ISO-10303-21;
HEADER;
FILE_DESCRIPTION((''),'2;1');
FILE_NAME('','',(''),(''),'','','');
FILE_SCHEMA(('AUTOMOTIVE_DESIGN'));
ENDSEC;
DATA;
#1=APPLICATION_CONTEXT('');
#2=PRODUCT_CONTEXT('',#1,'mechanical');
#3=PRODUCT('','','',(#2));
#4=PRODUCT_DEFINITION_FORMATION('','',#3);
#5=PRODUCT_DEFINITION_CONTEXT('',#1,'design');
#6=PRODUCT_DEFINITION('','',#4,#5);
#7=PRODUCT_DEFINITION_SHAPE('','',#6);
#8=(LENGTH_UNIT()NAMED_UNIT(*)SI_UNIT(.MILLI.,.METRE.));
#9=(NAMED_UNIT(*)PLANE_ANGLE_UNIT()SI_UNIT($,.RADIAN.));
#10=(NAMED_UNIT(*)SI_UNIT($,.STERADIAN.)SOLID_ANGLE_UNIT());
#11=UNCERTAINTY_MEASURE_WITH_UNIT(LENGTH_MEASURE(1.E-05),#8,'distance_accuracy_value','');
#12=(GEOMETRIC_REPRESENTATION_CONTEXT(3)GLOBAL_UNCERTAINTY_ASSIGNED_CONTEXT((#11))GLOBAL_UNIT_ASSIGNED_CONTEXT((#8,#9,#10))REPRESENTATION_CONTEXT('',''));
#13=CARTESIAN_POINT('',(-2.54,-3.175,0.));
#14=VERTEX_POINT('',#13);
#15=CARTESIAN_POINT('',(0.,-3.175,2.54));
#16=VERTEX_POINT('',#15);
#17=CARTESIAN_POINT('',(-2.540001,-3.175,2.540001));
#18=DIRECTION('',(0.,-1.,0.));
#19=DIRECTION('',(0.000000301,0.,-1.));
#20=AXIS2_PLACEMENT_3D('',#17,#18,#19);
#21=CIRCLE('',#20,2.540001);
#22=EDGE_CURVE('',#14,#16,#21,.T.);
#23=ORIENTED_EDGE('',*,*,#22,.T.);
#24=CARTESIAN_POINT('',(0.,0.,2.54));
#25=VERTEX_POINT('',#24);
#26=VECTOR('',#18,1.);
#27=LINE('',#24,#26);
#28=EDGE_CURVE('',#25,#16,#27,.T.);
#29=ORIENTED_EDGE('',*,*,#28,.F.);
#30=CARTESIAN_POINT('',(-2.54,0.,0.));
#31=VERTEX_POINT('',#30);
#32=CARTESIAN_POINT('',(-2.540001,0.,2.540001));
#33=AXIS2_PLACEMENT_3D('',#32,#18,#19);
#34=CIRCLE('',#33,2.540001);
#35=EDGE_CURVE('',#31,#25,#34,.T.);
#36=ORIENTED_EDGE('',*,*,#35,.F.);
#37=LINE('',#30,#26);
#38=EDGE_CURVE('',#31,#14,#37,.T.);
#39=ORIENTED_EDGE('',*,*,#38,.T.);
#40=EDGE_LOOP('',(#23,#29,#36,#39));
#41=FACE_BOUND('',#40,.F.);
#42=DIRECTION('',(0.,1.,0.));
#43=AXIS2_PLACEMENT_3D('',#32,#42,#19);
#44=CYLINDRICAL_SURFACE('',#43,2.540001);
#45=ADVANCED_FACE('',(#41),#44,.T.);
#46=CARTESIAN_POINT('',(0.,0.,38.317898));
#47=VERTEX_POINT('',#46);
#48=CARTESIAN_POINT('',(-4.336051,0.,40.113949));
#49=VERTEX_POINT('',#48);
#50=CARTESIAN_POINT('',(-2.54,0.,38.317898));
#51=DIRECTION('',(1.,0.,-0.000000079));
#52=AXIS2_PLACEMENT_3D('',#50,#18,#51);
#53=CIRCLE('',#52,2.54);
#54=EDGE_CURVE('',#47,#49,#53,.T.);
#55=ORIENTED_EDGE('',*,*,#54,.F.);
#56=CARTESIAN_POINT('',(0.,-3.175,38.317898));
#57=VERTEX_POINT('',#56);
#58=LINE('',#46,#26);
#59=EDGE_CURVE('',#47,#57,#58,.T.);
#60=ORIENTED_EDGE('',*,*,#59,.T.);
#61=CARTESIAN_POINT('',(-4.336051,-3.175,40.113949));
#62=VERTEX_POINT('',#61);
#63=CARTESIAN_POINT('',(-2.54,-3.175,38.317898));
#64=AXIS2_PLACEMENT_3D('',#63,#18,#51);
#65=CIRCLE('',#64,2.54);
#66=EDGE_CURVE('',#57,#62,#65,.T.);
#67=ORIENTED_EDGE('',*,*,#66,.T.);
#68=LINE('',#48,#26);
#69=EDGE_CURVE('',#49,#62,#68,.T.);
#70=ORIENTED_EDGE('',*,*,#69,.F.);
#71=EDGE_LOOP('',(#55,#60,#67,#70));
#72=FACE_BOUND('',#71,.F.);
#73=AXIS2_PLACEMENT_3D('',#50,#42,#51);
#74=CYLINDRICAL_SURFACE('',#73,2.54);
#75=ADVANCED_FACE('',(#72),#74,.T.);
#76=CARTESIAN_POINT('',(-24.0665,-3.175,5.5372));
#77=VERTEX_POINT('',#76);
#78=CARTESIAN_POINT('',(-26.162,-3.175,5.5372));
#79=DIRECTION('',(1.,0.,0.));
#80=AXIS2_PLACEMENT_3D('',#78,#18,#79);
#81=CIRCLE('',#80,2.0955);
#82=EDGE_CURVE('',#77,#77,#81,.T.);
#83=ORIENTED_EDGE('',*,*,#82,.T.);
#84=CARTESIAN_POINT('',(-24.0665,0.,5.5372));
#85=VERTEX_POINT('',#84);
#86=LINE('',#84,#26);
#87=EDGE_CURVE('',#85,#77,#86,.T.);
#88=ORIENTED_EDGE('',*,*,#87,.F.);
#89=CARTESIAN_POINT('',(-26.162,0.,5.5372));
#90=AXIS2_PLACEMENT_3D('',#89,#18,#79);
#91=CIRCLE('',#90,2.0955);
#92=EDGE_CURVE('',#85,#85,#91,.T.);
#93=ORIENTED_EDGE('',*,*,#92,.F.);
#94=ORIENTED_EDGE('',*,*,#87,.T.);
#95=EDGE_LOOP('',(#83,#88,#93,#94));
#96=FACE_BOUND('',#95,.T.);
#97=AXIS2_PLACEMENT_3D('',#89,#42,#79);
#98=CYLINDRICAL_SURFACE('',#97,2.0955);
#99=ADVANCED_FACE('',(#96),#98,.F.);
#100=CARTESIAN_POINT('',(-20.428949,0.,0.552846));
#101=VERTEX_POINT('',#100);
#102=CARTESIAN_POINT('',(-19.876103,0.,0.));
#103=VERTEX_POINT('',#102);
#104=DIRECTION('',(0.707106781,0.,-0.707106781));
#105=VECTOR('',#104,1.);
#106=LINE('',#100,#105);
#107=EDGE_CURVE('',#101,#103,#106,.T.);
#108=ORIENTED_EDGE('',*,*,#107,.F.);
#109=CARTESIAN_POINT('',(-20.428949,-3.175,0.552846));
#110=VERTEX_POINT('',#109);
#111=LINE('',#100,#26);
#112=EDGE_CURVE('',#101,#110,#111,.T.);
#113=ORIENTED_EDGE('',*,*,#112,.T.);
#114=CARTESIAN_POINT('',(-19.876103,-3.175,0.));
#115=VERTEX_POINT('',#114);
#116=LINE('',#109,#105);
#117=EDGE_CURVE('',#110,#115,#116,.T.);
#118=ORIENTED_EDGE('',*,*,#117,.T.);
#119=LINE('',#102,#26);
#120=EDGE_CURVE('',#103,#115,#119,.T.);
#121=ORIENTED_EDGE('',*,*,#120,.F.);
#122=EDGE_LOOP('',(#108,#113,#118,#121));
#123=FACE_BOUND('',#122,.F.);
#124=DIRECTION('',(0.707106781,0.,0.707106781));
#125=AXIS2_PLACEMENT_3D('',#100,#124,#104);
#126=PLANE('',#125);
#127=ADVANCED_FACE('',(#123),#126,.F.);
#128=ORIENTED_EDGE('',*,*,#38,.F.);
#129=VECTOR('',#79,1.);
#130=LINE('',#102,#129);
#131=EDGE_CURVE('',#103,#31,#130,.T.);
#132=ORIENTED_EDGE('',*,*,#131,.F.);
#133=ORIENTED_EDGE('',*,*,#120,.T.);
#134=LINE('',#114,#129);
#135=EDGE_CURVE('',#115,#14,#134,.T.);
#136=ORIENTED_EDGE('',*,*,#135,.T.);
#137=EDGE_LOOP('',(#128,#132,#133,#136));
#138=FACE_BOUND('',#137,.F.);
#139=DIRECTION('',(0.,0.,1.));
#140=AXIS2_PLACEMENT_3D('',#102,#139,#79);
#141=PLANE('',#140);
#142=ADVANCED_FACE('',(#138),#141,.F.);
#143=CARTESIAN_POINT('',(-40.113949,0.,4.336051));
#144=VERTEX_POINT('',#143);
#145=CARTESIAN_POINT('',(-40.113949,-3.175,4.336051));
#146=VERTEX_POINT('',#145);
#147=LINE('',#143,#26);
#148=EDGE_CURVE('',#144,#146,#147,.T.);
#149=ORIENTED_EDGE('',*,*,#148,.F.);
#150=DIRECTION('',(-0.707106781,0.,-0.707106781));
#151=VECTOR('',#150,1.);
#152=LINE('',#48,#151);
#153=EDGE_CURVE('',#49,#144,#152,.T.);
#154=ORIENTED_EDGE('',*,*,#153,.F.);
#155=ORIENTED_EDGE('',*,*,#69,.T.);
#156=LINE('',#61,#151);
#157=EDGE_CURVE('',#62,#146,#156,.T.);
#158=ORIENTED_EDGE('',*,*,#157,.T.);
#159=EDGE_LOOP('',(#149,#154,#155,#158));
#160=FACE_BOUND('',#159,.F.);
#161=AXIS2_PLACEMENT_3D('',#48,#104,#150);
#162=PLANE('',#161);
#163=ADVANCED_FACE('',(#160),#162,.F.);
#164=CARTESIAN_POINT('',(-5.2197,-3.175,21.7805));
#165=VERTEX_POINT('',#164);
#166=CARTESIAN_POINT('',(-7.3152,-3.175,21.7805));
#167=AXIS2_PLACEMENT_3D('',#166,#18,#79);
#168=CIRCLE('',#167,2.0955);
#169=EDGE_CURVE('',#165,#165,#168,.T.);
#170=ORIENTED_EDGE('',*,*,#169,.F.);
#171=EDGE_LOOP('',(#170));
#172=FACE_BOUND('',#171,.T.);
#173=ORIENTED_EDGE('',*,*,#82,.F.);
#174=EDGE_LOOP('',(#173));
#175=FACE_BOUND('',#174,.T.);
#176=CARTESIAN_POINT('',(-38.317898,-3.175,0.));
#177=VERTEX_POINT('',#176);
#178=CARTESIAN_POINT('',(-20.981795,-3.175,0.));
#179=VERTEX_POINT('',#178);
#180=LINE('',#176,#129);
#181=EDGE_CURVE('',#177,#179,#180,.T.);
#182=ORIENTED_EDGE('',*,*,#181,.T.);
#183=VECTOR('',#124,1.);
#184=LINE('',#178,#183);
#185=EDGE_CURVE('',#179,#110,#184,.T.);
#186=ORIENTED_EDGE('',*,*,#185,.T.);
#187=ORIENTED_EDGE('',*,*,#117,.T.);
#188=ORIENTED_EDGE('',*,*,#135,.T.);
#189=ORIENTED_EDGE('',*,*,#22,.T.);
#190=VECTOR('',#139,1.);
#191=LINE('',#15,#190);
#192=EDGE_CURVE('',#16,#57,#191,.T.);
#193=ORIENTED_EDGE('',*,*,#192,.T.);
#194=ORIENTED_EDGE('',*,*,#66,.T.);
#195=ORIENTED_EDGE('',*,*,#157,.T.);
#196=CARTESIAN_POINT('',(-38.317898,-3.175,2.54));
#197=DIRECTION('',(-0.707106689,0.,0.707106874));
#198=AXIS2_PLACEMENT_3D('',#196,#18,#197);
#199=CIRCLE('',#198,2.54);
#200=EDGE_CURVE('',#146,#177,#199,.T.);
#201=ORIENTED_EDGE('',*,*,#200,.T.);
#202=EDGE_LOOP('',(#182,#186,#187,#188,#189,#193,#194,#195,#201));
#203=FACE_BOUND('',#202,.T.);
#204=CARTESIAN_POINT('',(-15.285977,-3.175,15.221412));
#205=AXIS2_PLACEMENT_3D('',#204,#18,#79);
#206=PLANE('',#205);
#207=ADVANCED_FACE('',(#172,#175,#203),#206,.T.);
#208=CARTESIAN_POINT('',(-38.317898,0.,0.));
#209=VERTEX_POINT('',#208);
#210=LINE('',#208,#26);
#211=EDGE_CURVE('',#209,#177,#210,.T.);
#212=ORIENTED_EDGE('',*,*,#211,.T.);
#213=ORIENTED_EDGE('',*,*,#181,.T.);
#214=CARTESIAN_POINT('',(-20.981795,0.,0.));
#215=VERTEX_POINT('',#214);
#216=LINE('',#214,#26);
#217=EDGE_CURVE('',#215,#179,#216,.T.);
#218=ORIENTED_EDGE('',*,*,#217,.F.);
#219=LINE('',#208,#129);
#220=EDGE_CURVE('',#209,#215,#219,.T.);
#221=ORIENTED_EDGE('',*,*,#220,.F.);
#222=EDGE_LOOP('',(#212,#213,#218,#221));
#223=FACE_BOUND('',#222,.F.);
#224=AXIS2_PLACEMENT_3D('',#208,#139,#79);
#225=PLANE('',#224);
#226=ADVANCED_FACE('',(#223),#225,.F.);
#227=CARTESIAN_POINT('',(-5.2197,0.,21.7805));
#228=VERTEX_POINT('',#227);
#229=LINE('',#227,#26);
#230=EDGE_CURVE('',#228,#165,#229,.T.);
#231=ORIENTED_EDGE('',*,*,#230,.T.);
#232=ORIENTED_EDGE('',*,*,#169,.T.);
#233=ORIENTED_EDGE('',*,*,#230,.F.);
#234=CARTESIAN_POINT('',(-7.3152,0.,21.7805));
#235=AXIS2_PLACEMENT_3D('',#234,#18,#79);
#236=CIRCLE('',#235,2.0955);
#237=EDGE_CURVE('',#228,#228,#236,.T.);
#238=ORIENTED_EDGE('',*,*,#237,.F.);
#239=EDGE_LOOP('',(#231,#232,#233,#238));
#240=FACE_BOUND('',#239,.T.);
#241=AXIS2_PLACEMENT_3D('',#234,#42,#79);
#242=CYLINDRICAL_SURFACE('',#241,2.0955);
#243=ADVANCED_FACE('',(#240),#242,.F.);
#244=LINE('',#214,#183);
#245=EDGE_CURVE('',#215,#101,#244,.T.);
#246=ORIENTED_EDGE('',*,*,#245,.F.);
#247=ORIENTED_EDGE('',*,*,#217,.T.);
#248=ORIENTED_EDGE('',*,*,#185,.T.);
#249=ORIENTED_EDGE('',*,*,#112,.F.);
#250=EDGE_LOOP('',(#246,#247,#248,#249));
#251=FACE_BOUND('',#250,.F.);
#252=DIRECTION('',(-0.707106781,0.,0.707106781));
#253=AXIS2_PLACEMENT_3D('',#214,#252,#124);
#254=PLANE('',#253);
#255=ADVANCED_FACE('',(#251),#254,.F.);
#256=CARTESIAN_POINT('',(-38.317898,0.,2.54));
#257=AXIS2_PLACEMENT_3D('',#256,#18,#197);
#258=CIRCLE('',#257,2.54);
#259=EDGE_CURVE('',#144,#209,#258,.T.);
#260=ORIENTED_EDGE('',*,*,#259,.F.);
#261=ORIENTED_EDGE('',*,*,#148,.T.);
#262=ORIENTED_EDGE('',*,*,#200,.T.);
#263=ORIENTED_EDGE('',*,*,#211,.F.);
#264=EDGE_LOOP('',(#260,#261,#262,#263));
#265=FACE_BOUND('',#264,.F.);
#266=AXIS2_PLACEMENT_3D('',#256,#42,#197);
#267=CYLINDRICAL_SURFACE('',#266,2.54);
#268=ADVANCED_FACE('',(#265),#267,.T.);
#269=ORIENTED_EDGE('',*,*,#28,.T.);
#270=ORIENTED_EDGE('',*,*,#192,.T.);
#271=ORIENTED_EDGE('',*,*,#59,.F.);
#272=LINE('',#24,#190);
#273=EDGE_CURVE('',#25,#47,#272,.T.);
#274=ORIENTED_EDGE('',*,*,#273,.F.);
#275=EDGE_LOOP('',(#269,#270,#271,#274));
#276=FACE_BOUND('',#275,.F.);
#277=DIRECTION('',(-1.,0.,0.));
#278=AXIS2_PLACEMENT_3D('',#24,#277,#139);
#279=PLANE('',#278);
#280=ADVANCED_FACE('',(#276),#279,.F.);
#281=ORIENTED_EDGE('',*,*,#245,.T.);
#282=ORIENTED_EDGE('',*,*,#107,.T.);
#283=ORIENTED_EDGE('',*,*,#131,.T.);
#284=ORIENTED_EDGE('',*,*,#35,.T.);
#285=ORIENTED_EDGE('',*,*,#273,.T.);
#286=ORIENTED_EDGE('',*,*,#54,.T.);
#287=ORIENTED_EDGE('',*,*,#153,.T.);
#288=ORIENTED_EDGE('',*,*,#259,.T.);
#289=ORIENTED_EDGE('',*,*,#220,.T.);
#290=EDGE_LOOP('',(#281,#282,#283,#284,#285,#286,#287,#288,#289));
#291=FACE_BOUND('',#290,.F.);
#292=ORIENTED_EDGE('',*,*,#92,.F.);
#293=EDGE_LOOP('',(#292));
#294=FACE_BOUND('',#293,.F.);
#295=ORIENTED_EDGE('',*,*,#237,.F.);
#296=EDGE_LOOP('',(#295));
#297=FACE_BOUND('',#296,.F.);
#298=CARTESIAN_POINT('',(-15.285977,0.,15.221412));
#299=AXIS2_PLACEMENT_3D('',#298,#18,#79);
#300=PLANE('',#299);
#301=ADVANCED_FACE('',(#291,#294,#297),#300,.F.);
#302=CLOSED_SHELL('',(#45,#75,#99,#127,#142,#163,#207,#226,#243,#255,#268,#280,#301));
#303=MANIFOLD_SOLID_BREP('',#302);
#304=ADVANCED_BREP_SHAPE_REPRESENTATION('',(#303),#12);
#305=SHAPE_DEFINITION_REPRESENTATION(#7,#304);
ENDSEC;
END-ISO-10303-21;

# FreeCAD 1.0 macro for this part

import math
import FreeCAD as App
import Part
import Sketcher
Q = App.Units.Quantity

doc = App.newDocument("Part")
body = doc.addObject("PartDesign::Body", "Body")

# Sketch on XZ plane
sketch1 = body.newObject("Sketcher::SketchObject", "Sketch")
sketch1.AttachmentSupport = (doc.getObject("XZ_Plane"), [""])
sketch1.MapMode = "FlatFace"
sketch1.addGeometry([
    Part.ArcOfCircle(Part.Circle(App.Vector(-2.5, 2.5, 0), App.Vector(0, 0, 1), 2.5), math.radians(-90), math.radians(0)),  # 0
    Part.LineSegment(App.Vector(0, 2.5, 0), App.Vector(0, 38.3, 0)),  # 1
    Part.ArcOfCircle(Part.Circle(App.Vector(-2.5, 38.3, 0), App.Vector(0, 0, 1), 2.5), math.radians(0), math.radians(135)),  # 2
    Part.LineSegment(App.Vector(-4.3, 40.1, 0), App.Vector(-40.1, 4.3, 0)),  # 3
    Part.ArcOfCircle(Part.Circle(App.Vector(-38.3, 2.5, 0), App.Vector(0, 0, 1), 2.5), math.radians(135), math.radians(270)),  # 4
    Part.LineSegment(App.Vector(-38.3, 0, 0), App.Vector(-21, 0, 0)),  # 5
    Part.LineSegment(App.Vector(-21, 0, 0), App.Vector(-20.4, 0.6, 0)),  # 6
    Part.LineSegment(App.Vector(-20.4, 0.6, 0), App.Vector(-19.9, 0, 0)),  # 7
    Part.LineSegment(App.Vector(-19.9, 0, 0), App.Vector(-2.5, 0, 0)),  # 8
    Part.Circle(App.Vector(-26.2, 5.5, 0), App.Vector(0, 0, 1), 2.1),  # 9
    Part.Circle(App.Vector(-7.3, 21.8, 0), App.Vector(0, 0, 1), 2.1),  # 10
], False)
sketch1.addConstraint([
    Sketcher.Constraint("Tangent", 0, 2, 1, 1),
    Sketcher.Constraint("Tangent", 1, 2, 2, 1),
    Sketcher.Constraint("Tangent", 2, 2, 3, 1),
    Sketcher.Constraint("Tangent", 3, 2, 4, 1),
    Sketcher.Constraint("Tangent", 4, 2, 5, 1),
    Sketcher.Constraint("Coincident", 5, 2, 6, 1),
    Sketcher.Constraint("Coincident", 6, 2, 7, 1),
    Sketcher.Constraint("Coincident", 7, 2, 8, 1),
    Sketcher.Constraint("Tangent", 8, 2, 0, 1),
    Sketcher.Constraint("Vertical", 1),
    Sketcher.Constraint("Horizontal", 5),
    Sketcher.Constraint("Horizontal", 8),
    Sketcher.Constraint("Equal", 0, 2),
    Sketcher.Constraint("Equal", 2, 4),
    Sketcher.Constraint("Equal", 9, 10),
    Sketcher.Constraint("PointOnObject", 0, 2, -2),
    Sketcher.Constraint("PointOnObject", 4, 2, -1),
    Sketcher.Constraint("PointOnObject", 7, 2, -1),
    Sketcher.Constraint("Parallel", 3, 6),
    Sketcher.Constraint("Perpendicular", 6, 7),
    Sketcher.Constraint("Equal", 5, 8),
    Sketcher.Constraint("Equal", 6, 7),
    Sketcher.Constraint("Radius", 0, Q("0.1 in")),
    Sketcher.Constraint("Diameter", 9, Q("0.165 in")),
    Sketcher.Constraint("DistanceX", 9, 3, -1, 1, Q("1.03 in")),
    Sketcher.Constraint("DistanceY", -1, 1, 9, 3, Q("0.218 in")),
    Sketcher.Constraint("DistanceX", 10, 3, -1, 1, Q("0.288 in")),
    Sketcher.Constraint("DistanceY", -1, 1, 10, 3, Q("0.8575 in")),
    Sketcher.Constraint("DistanceY", -1, 1, 2, 3, 38.317898),
    Sketcher.Constraint("DistanceX", 5, 1, 5, 2, 17.336103),
])
pad1 = body.newObject("PartDesign::Pad", "Pad")
pad1.Profile = sketch1
pad1.Length = Q("0.125 in")

doc.recompute()
